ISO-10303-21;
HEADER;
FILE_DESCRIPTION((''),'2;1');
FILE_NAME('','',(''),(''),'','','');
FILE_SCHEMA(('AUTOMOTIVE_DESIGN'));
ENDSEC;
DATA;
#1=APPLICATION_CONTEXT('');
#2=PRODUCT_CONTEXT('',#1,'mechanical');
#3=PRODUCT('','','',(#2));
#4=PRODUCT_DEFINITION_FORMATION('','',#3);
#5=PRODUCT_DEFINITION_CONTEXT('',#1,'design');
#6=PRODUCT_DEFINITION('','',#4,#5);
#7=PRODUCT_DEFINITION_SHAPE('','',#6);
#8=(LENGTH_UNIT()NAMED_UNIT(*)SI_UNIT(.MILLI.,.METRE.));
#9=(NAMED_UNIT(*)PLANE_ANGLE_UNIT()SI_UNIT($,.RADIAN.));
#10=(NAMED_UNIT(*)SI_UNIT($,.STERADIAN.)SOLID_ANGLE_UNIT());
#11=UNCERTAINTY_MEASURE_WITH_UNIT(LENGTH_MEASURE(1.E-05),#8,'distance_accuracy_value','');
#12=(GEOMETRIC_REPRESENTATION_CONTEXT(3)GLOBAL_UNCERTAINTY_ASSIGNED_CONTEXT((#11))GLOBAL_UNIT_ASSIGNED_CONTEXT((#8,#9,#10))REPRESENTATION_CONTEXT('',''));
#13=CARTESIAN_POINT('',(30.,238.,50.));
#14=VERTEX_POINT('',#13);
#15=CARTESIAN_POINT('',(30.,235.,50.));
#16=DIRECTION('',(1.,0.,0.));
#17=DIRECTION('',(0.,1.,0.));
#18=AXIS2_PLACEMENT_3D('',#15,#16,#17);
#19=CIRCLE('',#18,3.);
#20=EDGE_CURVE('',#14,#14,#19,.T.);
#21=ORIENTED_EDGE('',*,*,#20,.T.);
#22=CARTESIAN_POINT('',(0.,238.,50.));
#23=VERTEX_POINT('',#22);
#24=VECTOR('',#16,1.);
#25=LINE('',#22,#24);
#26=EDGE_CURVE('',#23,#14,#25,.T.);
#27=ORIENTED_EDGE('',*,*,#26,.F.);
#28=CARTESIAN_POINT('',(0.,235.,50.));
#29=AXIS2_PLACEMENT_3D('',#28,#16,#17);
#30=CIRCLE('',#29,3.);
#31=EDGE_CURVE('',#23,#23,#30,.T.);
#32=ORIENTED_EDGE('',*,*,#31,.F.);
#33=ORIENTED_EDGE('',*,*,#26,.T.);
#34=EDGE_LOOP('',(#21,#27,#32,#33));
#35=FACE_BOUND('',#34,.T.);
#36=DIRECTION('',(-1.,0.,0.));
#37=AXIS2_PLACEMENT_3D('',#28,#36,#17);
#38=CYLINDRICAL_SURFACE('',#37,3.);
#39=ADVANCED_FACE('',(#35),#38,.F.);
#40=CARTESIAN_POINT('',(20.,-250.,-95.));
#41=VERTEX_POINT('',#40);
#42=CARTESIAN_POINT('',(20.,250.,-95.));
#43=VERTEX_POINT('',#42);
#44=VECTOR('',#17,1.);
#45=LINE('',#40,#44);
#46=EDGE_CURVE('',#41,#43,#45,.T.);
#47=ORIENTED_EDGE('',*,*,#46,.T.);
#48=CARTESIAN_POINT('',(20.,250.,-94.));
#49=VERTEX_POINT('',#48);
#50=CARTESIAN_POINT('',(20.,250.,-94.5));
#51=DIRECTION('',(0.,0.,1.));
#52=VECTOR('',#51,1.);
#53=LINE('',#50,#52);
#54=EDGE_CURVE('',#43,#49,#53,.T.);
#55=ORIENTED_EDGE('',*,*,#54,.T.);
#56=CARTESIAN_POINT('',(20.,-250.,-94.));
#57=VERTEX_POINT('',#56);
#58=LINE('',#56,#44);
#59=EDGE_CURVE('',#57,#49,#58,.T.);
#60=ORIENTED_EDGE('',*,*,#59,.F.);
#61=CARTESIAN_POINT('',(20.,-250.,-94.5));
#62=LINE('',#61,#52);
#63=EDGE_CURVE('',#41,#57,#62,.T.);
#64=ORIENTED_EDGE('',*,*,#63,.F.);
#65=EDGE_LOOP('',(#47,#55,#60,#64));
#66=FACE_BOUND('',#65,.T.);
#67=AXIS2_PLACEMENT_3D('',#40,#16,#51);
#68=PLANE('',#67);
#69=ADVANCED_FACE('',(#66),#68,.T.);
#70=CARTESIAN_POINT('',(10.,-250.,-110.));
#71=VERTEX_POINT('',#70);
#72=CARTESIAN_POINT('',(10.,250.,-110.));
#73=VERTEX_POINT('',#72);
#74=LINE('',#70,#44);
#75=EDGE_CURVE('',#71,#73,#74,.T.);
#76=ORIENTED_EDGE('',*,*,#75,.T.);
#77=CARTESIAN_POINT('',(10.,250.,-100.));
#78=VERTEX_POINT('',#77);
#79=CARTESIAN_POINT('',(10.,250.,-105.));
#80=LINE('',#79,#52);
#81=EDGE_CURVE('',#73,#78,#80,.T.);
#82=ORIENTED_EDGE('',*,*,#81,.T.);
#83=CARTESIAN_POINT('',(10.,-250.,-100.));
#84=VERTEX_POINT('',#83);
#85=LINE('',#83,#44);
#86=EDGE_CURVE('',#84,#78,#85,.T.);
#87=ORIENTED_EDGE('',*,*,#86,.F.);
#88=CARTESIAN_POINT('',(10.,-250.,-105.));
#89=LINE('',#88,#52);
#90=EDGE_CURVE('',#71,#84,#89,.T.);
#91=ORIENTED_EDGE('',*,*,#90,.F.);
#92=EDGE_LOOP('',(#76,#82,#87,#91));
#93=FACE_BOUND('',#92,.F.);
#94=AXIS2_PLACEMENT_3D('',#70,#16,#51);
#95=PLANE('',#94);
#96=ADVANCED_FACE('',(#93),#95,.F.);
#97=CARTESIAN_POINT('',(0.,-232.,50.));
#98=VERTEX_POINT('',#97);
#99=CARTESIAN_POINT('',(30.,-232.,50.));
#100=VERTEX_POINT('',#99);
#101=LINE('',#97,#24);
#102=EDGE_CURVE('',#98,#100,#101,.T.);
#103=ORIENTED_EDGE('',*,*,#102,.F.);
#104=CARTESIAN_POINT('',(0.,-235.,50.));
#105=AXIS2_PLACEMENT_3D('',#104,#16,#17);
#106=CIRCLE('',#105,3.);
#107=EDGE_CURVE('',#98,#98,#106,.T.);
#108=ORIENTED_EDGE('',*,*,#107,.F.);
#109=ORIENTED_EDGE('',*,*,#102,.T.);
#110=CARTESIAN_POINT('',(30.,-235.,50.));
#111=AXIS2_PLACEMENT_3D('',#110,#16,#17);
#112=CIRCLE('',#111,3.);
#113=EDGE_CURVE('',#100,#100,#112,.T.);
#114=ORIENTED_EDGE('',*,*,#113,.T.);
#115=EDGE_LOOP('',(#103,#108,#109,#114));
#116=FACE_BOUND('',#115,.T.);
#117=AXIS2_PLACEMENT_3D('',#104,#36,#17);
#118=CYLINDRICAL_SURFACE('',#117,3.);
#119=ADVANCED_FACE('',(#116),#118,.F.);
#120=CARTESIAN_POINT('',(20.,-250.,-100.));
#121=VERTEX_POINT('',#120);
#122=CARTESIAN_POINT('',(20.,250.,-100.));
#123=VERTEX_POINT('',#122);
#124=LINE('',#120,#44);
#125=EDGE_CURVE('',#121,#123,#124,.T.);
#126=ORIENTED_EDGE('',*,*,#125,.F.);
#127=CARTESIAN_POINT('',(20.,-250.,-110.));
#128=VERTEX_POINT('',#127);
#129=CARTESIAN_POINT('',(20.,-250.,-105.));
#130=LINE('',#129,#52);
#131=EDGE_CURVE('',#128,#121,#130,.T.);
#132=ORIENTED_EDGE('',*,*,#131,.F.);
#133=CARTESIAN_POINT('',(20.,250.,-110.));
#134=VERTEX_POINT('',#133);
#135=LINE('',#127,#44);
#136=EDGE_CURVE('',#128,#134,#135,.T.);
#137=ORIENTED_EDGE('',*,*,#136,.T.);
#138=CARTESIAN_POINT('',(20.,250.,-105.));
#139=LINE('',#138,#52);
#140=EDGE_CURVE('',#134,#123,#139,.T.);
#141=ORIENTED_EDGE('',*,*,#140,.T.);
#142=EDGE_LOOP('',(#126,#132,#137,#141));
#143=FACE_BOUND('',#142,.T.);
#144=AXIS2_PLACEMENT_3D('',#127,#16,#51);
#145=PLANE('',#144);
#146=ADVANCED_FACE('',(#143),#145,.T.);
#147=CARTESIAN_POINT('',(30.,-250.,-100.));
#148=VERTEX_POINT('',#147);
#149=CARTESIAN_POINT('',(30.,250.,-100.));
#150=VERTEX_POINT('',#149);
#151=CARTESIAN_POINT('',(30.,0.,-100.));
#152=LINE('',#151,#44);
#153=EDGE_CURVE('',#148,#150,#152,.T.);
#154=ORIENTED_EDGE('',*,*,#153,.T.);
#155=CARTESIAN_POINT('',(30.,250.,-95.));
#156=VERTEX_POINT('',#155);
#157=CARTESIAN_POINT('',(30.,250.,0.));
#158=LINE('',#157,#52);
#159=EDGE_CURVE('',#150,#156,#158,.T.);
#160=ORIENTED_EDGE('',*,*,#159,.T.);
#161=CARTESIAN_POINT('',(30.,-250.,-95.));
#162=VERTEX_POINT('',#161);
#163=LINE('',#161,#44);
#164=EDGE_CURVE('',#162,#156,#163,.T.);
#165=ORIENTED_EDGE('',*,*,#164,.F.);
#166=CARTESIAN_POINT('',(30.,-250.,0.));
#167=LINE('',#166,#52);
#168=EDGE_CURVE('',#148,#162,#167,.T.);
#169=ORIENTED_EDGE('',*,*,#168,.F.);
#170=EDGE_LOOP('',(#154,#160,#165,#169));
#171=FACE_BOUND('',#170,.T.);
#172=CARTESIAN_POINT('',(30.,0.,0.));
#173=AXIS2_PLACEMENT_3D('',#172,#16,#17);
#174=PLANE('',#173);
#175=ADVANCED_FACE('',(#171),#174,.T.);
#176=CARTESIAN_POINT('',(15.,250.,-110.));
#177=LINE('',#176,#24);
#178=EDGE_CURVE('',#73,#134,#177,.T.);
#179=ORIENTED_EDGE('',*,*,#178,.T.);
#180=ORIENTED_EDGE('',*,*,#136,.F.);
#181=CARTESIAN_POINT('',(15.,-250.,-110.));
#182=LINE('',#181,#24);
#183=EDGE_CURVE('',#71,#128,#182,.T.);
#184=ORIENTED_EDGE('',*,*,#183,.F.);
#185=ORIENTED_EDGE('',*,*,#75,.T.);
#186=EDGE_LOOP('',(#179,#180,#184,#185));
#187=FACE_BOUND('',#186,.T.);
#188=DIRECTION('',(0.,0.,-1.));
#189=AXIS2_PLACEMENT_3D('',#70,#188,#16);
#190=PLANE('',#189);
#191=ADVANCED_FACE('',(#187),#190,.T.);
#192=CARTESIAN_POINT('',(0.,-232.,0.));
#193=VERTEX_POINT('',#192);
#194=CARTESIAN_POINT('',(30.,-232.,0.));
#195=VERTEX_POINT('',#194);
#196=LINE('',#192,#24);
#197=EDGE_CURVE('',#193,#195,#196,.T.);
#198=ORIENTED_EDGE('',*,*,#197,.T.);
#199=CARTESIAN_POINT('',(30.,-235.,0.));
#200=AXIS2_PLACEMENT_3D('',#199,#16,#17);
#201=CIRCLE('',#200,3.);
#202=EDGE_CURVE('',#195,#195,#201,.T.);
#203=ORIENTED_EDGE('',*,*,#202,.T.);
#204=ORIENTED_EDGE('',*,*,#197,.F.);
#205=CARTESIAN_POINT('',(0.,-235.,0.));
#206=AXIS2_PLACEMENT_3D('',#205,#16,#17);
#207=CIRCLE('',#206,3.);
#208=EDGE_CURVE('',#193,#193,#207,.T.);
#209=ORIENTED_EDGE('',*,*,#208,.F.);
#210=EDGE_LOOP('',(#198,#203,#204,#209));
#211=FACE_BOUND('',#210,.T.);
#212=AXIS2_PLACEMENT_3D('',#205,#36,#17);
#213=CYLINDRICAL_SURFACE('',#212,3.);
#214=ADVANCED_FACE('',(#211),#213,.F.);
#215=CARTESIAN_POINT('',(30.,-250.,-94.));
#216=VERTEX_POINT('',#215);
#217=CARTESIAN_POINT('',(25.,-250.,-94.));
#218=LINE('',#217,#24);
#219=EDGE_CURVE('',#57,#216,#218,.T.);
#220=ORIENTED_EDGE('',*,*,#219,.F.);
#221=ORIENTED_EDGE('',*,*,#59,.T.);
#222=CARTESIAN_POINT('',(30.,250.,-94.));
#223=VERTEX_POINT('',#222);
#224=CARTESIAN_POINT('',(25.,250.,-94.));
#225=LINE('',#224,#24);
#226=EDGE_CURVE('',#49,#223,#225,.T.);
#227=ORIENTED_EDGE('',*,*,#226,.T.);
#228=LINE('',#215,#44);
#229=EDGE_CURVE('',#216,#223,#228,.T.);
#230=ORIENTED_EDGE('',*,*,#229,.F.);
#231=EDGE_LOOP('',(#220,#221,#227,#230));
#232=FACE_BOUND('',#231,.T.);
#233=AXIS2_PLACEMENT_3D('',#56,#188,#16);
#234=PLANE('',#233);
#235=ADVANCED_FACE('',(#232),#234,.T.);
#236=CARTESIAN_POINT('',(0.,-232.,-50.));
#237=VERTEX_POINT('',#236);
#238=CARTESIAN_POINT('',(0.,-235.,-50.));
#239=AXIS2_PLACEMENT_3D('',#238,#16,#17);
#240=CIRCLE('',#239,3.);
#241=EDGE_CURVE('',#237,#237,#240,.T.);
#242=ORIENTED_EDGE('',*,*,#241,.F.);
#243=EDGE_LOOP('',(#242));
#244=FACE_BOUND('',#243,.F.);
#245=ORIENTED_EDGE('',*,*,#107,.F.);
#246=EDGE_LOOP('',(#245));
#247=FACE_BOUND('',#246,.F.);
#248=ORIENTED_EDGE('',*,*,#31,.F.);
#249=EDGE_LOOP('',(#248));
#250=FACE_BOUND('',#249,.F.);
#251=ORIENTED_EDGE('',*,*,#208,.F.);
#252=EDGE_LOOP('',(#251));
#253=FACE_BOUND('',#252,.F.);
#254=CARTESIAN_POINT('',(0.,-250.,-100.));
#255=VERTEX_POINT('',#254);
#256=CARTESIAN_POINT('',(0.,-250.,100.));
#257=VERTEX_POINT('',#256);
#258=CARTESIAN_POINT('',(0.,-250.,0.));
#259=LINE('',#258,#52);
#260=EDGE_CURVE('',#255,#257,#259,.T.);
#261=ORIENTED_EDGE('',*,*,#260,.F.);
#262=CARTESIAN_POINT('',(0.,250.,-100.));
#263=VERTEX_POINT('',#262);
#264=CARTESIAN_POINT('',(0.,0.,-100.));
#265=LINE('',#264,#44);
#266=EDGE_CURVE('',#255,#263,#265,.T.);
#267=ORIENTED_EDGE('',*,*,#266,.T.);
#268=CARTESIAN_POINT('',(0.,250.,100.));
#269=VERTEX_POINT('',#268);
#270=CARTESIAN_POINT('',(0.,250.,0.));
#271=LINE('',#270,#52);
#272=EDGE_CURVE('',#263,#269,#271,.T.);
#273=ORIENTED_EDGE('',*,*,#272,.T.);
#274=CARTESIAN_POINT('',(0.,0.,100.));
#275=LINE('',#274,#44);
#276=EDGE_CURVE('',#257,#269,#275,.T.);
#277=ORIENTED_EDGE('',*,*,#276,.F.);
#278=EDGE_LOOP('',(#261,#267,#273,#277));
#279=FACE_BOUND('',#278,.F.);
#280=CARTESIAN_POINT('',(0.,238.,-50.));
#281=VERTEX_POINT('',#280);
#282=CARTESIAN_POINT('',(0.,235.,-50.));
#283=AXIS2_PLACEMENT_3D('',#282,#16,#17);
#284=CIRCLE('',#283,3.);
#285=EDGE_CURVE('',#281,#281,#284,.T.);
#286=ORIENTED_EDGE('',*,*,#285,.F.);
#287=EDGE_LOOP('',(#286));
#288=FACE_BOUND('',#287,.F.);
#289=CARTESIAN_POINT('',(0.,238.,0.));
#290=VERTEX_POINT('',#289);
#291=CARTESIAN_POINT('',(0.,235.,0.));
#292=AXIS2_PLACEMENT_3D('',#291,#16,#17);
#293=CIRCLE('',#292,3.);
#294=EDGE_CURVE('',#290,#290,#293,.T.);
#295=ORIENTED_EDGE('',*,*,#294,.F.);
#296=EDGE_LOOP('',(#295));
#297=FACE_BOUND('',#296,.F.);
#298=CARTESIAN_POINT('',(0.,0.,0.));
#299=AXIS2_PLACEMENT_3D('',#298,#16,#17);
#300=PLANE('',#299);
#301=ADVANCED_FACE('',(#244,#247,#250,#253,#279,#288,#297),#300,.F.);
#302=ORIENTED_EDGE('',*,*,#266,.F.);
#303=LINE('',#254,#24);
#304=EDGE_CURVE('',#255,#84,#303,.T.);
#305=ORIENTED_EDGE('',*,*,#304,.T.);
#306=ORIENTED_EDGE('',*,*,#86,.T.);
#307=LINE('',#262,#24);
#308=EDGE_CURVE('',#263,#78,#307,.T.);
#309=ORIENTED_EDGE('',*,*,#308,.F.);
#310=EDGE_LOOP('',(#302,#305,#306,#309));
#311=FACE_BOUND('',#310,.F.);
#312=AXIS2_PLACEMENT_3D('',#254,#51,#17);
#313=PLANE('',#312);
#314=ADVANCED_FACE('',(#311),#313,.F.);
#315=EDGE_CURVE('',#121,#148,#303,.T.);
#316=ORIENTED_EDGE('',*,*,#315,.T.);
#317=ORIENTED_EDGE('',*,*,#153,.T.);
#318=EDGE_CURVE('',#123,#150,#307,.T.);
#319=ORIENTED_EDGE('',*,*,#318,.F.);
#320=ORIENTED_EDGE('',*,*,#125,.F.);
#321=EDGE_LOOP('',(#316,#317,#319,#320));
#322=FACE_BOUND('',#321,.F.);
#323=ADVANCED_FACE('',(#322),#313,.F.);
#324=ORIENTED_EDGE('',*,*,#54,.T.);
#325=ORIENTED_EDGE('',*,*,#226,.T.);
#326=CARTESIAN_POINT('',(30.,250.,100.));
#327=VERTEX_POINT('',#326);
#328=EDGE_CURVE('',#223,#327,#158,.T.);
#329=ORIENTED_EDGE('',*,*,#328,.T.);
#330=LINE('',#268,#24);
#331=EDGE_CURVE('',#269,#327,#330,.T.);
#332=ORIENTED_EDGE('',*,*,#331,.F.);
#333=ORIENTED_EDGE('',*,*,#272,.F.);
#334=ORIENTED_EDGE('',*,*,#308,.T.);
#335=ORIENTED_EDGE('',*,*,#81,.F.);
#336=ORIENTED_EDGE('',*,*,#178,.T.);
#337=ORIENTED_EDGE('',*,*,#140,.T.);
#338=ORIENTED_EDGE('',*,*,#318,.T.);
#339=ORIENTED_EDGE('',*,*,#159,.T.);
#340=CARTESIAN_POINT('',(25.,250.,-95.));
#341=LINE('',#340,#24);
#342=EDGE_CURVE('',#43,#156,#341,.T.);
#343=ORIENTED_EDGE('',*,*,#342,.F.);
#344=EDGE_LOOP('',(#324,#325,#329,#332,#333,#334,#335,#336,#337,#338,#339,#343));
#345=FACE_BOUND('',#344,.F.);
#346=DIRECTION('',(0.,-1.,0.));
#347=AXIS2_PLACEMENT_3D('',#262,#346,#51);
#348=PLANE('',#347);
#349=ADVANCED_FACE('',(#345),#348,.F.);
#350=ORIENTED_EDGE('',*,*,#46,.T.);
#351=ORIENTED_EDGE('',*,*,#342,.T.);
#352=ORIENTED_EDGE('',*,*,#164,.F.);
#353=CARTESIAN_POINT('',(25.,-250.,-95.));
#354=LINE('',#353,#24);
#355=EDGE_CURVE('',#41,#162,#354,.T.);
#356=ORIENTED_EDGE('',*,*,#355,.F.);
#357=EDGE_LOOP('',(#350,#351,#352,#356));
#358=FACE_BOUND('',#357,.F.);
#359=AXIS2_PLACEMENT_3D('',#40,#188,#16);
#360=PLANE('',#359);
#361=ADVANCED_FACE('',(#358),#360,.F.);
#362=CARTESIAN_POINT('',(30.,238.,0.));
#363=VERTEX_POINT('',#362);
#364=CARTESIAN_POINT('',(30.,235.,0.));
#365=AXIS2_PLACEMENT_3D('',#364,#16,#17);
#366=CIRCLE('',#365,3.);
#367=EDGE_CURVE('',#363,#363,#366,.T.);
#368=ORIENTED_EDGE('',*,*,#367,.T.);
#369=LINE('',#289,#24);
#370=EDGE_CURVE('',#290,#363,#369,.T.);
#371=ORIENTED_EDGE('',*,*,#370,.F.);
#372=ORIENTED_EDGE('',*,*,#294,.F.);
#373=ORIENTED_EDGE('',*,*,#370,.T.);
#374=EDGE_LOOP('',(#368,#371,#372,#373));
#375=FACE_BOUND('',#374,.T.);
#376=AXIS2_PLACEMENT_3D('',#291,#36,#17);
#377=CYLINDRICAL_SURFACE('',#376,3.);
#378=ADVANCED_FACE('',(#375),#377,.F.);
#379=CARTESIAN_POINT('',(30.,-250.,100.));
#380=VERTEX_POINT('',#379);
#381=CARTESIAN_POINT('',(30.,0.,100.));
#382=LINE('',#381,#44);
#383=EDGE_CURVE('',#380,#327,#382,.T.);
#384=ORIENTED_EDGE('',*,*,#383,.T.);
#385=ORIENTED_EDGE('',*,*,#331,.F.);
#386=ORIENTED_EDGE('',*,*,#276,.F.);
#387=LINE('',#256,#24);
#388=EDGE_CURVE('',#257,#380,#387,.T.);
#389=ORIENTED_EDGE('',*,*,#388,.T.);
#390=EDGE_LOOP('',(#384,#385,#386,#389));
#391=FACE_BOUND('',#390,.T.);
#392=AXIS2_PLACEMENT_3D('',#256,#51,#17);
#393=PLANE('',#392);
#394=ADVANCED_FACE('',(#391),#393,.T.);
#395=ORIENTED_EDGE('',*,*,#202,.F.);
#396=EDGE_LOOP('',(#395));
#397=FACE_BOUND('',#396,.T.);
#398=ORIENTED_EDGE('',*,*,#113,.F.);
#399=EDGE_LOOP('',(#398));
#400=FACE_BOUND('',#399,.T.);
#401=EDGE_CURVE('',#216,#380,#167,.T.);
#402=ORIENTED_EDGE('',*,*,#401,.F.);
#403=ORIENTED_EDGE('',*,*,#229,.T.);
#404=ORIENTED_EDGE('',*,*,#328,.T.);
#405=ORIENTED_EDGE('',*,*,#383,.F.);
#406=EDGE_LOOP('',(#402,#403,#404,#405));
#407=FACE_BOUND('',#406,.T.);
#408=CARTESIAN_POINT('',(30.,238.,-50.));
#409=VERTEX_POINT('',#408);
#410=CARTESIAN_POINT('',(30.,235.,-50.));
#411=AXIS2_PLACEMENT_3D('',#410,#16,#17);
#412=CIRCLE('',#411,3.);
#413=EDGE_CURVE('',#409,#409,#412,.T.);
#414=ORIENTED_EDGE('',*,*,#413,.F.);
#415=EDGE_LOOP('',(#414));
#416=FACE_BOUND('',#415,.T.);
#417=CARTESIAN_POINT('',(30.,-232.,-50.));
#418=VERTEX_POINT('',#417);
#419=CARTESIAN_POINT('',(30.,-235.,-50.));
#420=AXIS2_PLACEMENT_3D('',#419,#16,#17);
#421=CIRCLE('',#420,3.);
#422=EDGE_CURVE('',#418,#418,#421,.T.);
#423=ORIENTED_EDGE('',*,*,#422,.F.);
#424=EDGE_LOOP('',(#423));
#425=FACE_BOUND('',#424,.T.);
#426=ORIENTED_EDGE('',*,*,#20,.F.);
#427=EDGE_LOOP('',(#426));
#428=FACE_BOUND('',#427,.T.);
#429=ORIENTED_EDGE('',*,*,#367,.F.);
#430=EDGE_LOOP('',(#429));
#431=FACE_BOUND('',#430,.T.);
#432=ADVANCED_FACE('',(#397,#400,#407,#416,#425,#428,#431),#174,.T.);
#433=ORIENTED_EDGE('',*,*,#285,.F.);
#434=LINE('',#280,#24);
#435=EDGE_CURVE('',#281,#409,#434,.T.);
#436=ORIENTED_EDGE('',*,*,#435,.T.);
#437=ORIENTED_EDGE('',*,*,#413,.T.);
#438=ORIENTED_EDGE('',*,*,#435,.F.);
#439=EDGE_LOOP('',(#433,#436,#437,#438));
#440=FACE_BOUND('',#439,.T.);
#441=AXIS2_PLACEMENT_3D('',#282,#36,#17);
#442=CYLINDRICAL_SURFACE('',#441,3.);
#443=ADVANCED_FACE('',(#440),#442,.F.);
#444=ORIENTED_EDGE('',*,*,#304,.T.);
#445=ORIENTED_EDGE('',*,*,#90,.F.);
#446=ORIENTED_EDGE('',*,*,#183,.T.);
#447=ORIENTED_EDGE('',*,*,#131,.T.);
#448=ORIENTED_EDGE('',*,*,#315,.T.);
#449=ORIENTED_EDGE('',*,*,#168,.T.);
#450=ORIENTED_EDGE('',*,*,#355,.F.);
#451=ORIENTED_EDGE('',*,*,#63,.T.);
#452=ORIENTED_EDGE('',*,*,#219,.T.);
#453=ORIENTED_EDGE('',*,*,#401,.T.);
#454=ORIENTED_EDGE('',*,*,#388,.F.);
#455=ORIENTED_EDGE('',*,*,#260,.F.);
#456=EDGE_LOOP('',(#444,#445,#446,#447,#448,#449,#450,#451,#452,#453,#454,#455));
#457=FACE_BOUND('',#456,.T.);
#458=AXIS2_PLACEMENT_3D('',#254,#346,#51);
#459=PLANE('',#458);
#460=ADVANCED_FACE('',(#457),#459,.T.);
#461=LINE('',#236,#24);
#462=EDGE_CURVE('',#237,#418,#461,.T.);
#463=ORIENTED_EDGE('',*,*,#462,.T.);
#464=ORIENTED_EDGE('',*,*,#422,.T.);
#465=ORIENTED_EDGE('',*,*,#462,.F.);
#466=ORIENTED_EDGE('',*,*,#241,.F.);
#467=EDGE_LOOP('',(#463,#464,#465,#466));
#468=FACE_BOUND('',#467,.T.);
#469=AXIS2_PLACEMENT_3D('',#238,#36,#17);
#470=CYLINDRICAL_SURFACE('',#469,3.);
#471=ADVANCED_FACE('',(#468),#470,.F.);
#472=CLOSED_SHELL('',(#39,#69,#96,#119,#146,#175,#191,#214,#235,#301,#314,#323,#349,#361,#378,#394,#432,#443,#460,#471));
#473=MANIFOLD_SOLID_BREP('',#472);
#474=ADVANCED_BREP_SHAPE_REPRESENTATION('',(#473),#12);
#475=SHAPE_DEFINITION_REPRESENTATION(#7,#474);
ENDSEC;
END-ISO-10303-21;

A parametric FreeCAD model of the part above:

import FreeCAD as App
import Part
import Sketcher

V = App.Vector


def add_polygon(sketch, points):
    """Adds a closed chain of lines whose ends are joined by coincident constraints."""
    first, n = sketch.GeometryCount, len(points)
    for a, b in zip(points, points[1:] + points[:1]):
        sketch.addGeometry(Part.LineSegment(App.Vector(*a, 0), App.Vector(*b, 0)), False)
    for i in range(n):
        sketch.addConstraint(Sketcher.Constraint("Coincident", first + i, 2, first + (i + 1) % n, 1))

doc = App.newDocument("Part")
body = doc.addObject("PartDesign::Body", "Body")

# Sketch on YZ plane
sketch1 = body.newObject("Sketcher::SketchObject", "Sketch")
sketch1.AttachmentSupport = (doc.getObject("YZ_Plane"), [""])
sketch1.MapMode = "FlatFace"
add_polygon(sketch1, [(-250, 100), (-250, -100), (250, -100), (250, 100)])  # lines 0-3
sketch1.addGeometry(Part.Circle(V(-235, -50, 0), V(0, 0, 1), 3), False)  # 4
sketch1.addGeometry(Part.Circle(V(235, -50, 0), V(0, 0, 1), 3), False)  # 5
sketch1.addGeometry(Part.Circle(V(-235, 0, 0), V(0, 0, 1), 3), False)  # 6
sketch1.addGeometry(Part.Circle(V(-235, 50, 0), V(0, 0, 1), 3), False)  # 7
sketch1.addGeometry(Part.Circle(V(235, 0, 0), V(0, 0, 1), 3), False)  # 8
sketch1.addGeometry(Part.Circle(V(235, 50, 0), V(0, 0, 1), 3), False)  # 9
sketch1.addConstraint([
    Sketcher.Constraint("Vertical", 0),
    Sketcher.Constraint("Horizontal", 1),
    Sketcher.Constraint("Vertical", 2),
    Sketcher.Constraint("Horizontal", 3),
    Sketcher.Constraint("Equal", 4, 5),
    Sketcher.Constraint("Equal", 5, 6),
    Sketcher.Constraint("Equal", 6, 7),
    Sketcher.Constraint("Equal", 7, 8),
    Sketcher.Constraint("Equal", 8, 9),
    Sketcher.Constraint("Symmetric", 5, 3, 7, 3, -1, 1),
    Sketcher.Constraint("Symmetric", 6, 3, 8, 3, -1, 1),
    Sketcher.Constraint("Symmetric", 4, 3, 9, 3, -1, 1),
    Sketcher.Constraint("Symmetric", 0, 2, 2, 2, -1, 1),
    Sketcher.Constraint("Symmetric", 4, 3, 5, 3, -2),
    Sketcher.Constraint("PointOnObject", 6, 3, -1),
    Sketcher.Constraint("Vertical", 4, 3, 6, 3),
    Sketcher.Constraint("Diameter", 4, 6.0),
    Sketcher.Constraint("DistanceX", 1, 1, 1, 2, 500.0),
    Sketcher.Constraint("DistanceY", 0, 2, 0, 1, 200.0),
    Sketcher.Constraint("DistanceX", 4, 3, -1, 1, 235.0),
    Sketcher.Constraint("DistanceY", 4, 3, -1, 1, 50.0),
])
pad1 = body.newObject("PartDesign::Pad", "Pad")
pad1.Profile = sketch1
pad1.Length = 30

# Sketch on XZ plane
sketch2 = body.newObject("Sketcher::SketchObject", "Sketch001")
sketch2.AttachmentSupport = (doc.getObject("XZ_Plane"), [""])
sketch2.MapMode = "FlatFace"
sketch2.AttachmentOffset = App.Placement(V(0, 0, 250), App.Rotation())
add_polygon(sketch2, [(10, -100), (10, -110), (20, -110), (20, -100)])  # lines 0-3
sketch2.addConstraint([
    Sketcher.Constraint("Vertical", 0),
    Sketcher.Constraint("Horizontal", 1),
    Sketcher.Constraint("Vertical", 2),
    Sketcher.Constraint("Horizontal", 3),
    Sketcher.Constraint("Equal", 3, 0),
    Sketcher.Constraint("DistanceX", 1, 1, 1, 2, 10.0),
    Sketcher.Constraint("DistanceX", -1, 1, 0, 2, 10.0),
    Sketcher.Constraint("DistanceY", 0, 2, -1, 1, 110.0),
])
pad2 = body.newObject("PartDesign::Pad", "Pad001")
pad2.Profile = sketch2
pad2.Length = 500
pad2.Reversed = True

# Sketch on XZ plane
sketch3 = body.newObject("Sketcher::SketchObject", "Sketch002")
sketch3.AttachmentSupport = (doc.getObject("XZ_Plane"), [""])
sketch3.MapMode = "FlatFace"
sketch3.AttachmentOffset = App.Placement(V(0, 0, 250), App.Rotation())
add_polygon(sketch3, [(20, -94), (20, -95), (30, -95), (30, -94)])  # lines 0-3
sketch3.addConstraint([
    Sketcher.Constraint("Vertical", 0),
    Sketcher.Constraint("Horizontal", 1),
    Sketcher.Constraint("Vertical", 2),
    Sketcher.Constraint("Horizontal", 3),
    Sketcher.Constraint("DistanceX", 1, 1, 1, 2, 10.0),
    Sketcher.Constraint("DistanceY", 0, 2, 0, 1, 1.0),
    Sketcher.Constraint("DistanceX", -1, 1, 0, 2, 20.0),
    Sketcher.Constraint("DistanceY", 0, 2, -1, 1, 95.0),
])
pocket1 = body.newObject("PartDesign::Pocket", "Pocket")
pocket1.Profile = sketch3
pocket1.Length = 500

doc.recompute()
